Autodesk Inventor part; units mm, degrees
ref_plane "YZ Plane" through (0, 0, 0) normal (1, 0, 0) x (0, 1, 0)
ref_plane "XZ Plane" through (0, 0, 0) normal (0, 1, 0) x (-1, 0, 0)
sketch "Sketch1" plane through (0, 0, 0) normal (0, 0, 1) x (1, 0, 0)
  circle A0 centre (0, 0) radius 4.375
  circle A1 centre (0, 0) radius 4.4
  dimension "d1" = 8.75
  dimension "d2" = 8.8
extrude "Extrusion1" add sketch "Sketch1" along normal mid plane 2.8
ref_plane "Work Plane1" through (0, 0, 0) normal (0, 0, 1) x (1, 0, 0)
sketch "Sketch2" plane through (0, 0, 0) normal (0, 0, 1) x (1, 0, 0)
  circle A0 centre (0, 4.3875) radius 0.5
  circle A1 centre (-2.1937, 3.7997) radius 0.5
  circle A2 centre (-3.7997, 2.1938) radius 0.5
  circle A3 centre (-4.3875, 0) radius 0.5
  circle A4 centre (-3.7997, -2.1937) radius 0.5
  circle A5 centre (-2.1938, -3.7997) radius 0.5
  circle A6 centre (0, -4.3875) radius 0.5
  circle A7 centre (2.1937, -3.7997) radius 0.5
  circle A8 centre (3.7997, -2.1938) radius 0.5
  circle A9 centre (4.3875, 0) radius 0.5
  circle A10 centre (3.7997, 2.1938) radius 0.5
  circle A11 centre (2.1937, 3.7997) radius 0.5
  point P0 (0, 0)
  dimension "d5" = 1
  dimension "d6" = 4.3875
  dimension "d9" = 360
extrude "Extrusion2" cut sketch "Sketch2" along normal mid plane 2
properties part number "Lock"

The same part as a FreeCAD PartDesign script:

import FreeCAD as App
import Part
import Sketcher

doc = App.newDocument("Part")
body = doc.addObject("PartDesign::Body", "Body")

# Sketch on XY plane
sketch1 = body.newObject("Sketcher::SketchObject", "Sketch")
sketch1.AttachmentSupport = (doc.getObject("XY_Plane"), [""])
sketch1.MapMode = "FlatFace"
sketch1.addGeometry([
    Part.Circle(App.Vector(0, 0, 0), App.Vector(0, 0, 1), 4.4),
    Part.Circle(App.Vector(0, 0, 0), App.Vector(0, 0, 1), 4.4),
], False)
sketch1.addConstraint([
    Sketcher.Constraint("Coincident", 0, 3, -1, 1),
    Sketcher.Constraint("Coincident", 1, 3, -1, 1),
    Sketcher.Constraint("Diameter", 0, 8.8),
    Sketcher.Constraint("Diameter", 1, 8.75),
])
pad1 = body.newObject("PartDesign::Pad", "Pad")
pad1.Profile = sketch1
pad1.Length = 2.8
pad1.Midplane = True

# Sketch on XY plane
sketch2 = body.newObject("Sketcher::SketchObject", "Sketch001")
sketch2.AttachmentSupport = (doc.getObject("XY_Plane"), [""])
sketch2.MapMode = "FlatFace"
sketch2.addGeometry([
    Part.Circle(App.Vector(0, 4.4, 0), App.Vector(0, 0, 1), 0.5),  # 0
    Part.Circle(App.Vector(-2.2, 3.8, 0), App.Vector(0, 0, 1), 0.5),  # 1
    Part.Circle(App.Vector(-3.8, 2.2, 0), App.Vector(0, 0, 1), 0.5),  # 2
    Part.Circle(App.Vector(-4.4, 0, 0), App.Vector(0, 0, 1), 0.5),  # 3
    Part.Circle(App.Vector(-3.8, -2.2, 0), App.Vector(0, 0, 1), 0.5),  # 4
    Part.Circle(App.Vector(-2.2, -3.8, 0), App.Vector(0, 0, 1), 0.5),  # 5
    Part.Circle(App.Vector(0, -4.4, 0), App.Vector(0, 0, 1), 0.5),  # 6
    Part.Circle(App.Vector(2.2, -3.8, 0), App.Vector(0, 0, 1), 0.5),  # 7
    Part.Circle(App.Vector(3.8, -2.2, 0), App.Vector(0, 0, 1), 0.5),  # 8
    Part.Circle(App.Vector(4.4, 0, 0), App.Vector(0, 0, 1), 0.5),  # 9
    Part.Circle(App.Vector(3.8, 2.2, 0), App.Vector(0, 0, 1), 0.5),  # 10
    Part.Circle(App.Vector(2.2, 3.8, 0), App.Vector(0, 0, 1), 0.5),  # 11
], False)
sketch2.addConstraint([
    Sketcher.Constraint("Equal", 0, 1),
    Sketcher.Constraint("Equal", 1, 2),
    Sketcher.Constraint("Equal", 2, 3),
    Sketcher.Constraint("Equal", 3, 4),
    Sketcher.Constraint("Equal", 4, 5),
    Sketcher.Constraint("Equal", 5, 6),
    Sketcher.Constraint("Equal", 6, 7),
    Sketcher.Constraint("Equal", 7, 8),
    Sketcher.Constraint("Equal", 8, 9),
    Sketcher.Constraint("Equal", 9, 10),
    Sketcher.Constraint("Equal", 10, 11),
    Sketcher.Constraint("Symmetric", 0, 3, 6, 3, -1, 1),
    Sketcher.Constraint("Symmetric", 1, 3, 7, 3, -1, 1),
    Sketcher.Constraint("Symmetric", 2, 3, 8, 3, -1, 1),
    Sketcher.Constraint("Symmetric", 3, 3, 9, 3, -1, 1),
    Sketcher.Constraint("Symmetric", 4, 3, 10, 3, -1, 1),
    Sketcher.Constraint("Symmetric", 5, 3, 11, 3, -1, 1),
    Sketcher.Constraint("Symmetric", 5, 3, 7, 3, -2),
    Sketcher.Constraint("Symmetric", 4, 3, 8, 3, -2),
    Sketcher.Constraint("PointOnObject", 0, 3, -2),
    Sketcher.Constraint("PointOnObject", 3, 3, -1),
    Sketcher.Constraint("Diameter", 0, 1.0),
    Sketcher.Constraint("DistanceY", -1, 1, 0, 3, 4.3875),
    Sketcher.Constraint("DistanceX", 3, 3, -1, 1, 4.3875),
    Sketcher.Constraint("DistanceY", 4, 3, 2, 3, 4.3875),
    Sketcher.Constraint("DistanceX", 5, 3, 7, 3, 4.3875),
    Sketcher.Constraint("DistanceX", 2, 3, 1, 3, 1.606),
    Sketcher.Constraint("DistanceY", 2, 3, 1, 3, 1.606),
])
pocket1 = body.newObject("PartDesign::Pocket", "Pocket")
pocket1.Profile = sketch2
pocket1.Length = 2
pocket1.Midplane = True

doc.recompute()
